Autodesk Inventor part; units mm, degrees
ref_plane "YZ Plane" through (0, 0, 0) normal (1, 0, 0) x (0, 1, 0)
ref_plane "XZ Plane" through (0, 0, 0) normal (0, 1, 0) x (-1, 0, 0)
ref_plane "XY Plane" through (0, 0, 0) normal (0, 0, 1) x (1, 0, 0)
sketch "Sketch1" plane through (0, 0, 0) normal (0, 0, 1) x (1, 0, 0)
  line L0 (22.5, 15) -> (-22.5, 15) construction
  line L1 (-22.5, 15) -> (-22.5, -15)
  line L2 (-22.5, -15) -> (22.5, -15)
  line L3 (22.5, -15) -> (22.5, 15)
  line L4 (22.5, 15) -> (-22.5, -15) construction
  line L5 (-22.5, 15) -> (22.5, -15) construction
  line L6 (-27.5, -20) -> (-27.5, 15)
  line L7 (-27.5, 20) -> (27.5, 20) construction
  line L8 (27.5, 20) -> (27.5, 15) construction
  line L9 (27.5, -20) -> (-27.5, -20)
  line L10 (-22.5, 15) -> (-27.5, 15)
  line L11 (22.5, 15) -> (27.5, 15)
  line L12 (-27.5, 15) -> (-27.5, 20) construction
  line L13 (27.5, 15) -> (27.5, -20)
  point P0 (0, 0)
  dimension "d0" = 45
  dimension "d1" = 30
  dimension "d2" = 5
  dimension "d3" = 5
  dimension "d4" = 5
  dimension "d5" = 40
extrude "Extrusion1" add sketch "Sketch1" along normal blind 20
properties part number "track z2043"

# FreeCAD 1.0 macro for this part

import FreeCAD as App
import Part
import Sketcher
Q = App.Units.Quantity

doc = App.newDocument("Part")
body = doc.addObject("PartDesign::Body", "Body")

# Sketch on XY plane
sketch1 = body.newObject("Sketcher::SketchObject", "Sketch")
sketch1.AttachmentSupport = (doc.getObject("XY_Plane"), [""])
sketch1.MapMode = "FlatFace"
sketch1.addGeometry([
    Part.LineSegment(App.Vector(-22.5, -15, 0), App.Vector(-22.5, 15, 0)),  # 0
    Part.LineSegment(App.Vector(-22.5, 15, 0), App.Vector(-27.5, 15, 0)),  # 1
    Part.LineSegment(App.Vector(-27.5, 15, 0), App.Vector(-27.5, -20, 0)),  # 2
    Part.LineSegment(App.Vector(-27.5, -20, 0), App.Vector(27.5, -20, 0)),  # 3
    Part.LineSegment(App.Vector(27.5, -20, 0), App.Vector(27.5, 15, 0)),  # 4
    Part.LineSegment(App.Vector(27.5, 15, 0), App.Vector(22.5, 15, 0)),  # 5
    Part.LineSegment(App.Vector(22.5, 15, 0), App.Vector(22.5, -15, 0)),  # 6
    Part.LineSegment(App.Vector(22.5, -15, 0), App.Vector(-22.5, -15, 0)),  # 7
], False)
sketch1.addConstraint([
    Sketcher.Constraint("Coincident", 0, 2, 1, 1),
    Sketcher.Constraint("Coincident", 1, 2, 2, 1),
    Sketcher.Constraint("Coincident", 2, 2, 3, 1),
    Sketcher.Constraint("Coincident", 3, 2, 4, 1),
    Sketcher.Constraint("Coincident", 4, 2, 5, 1),
    Sketcher.Constraint("Coincident", 5, 2, 6, 1),
    Sketcher.Constraint("Coincident", 6, 2, 7, 1),
    Sketcher.Constraint("Coincident", 7, 2, 0, 1),
    Sketcher.Constraint("Vertical", 0),
    Sketcher.Constraint("Horizontal", 1),
    Sketcher.Constraint("Vertical", 2),
    Sketcher.Constraint("Horizontal", 3),
    Sketcher.Constraint("Vertical", 4),
    Sketcher.Constraint("Horizontal", 5),
    Sketcher.Constraint("Vertical", 6),
    Sketcher.Constraint("Horizontal", 7),
    Sketcher.Constraint("Symmetric", 0, 2, 6, 2, -1, 1),
    Sketcher.Constraint("Symmetric", 1, 2, 4, 2, -2),
    Sketcher.Constraint("DistanceX", 1, 2, 1, 1, Q("5 mm")),
    Sketcher.Constraint("DistanceX", 7, 2, 7, 1, Q("45 mm")),
    Sketcher.Constraint("DistanceY", 0, 1, 0, 2, Q("30 mm")),
    Sketcher.Constraint("DistanceY", 3, 2, 6, 2, Q("5 mm")),
])
pad1 = body.newObject("PartDesign::Pad", "Pad")
pad1.Profile = sketch1
pad1.Length = 20

doc.recompute()
